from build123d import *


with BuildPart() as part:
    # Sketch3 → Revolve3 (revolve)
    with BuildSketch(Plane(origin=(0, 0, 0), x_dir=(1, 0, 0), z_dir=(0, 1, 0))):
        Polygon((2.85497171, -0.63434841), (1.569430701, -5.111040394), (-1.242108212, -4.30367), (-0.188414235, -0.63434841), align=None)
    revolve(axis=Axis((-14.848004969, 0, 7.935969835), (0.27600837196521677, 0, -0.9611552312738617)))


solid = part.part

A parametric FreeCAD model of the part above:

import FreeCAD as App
import Part
import Sketcher
from FreeCAD import Vector


def add_polygon(sketch, points):
    """Adds a closed chain of lines whose ends are joined by coincident constraints."""
    first, n = sketch.GeometryCount, len(points)
    for a, b in zip(points, points[1:] + points[:1]):
        sketch.addGeometry(Part.LineSegment(App.Vector(*a, 0), App.Vector(*b, 0)), False)
    for i in range(n):
        sketch.addConstraint(Sketcher.Constraint("Coincident", first + i, 2, first + (i + 1) % n, 1))

doc = App.newDocument("Part")
body = doc.addObject("PartDesign::Body", "Body")

sketch1 = body.newObject("Sketcher::SketchObject", "Sketch")
sketch1.AttachmentSupport = (doc.getObject("XZ_Plane"), [""])
sketch1.MapMode = "FlatFace"
add_polygon(sketch1, [(1.6, 5.1), (2.9, 0.6), (-0.2, 0.6), (-1.2, 4.3)])
sketch1.addGeometry(Part.LineSegment(Vector(-12.8, 1, 0), Vector(-11.6, -3.5, 0)), True)
sketch1.addConstraint([
    Sketcher.Constraint("Horizontal", 1),
    Sketcher.Constraint("Parallel", 0, 2),
    Sketcher.Constraint("Perpendicular", 2, 3),
    Sketcher.Constraint("Perpendicular", 3, 4),
    Sketcher.Constraint("Equal", 0, 4),
    Sketcher.Constraint("DistanceX", 1, 2, 1, 1, 3.043386),
    Sketcher.Constraint("DistanceX", -1, 1, 0, 2, 2.854972),
    Sketcher.Constraint("DistanceY", -1, 1, 0, 2, 0.634348),
    Sketcher.Constraint("DistanceX", 2, 2, -1, 1, 1.242108),
    Sketcher.Constraint("DistanceY", -1, 1, 2, 2, 4.30367),
    Sketcher.Constraint("DistanceX", 4, 1, 2, 2, 11.60579),
    Sketcher.Constraint("DistanceY", -1, 1, 4, 1, 0.970915),
])
revolution = body.newObject("PartDesign::Revolution", "Revolution")
revolution.Profile = sketch1
revolution.ReferenceAxis = (sketch1, ["Axis0"])
revolution.Angle = 360

doc.recompute()
